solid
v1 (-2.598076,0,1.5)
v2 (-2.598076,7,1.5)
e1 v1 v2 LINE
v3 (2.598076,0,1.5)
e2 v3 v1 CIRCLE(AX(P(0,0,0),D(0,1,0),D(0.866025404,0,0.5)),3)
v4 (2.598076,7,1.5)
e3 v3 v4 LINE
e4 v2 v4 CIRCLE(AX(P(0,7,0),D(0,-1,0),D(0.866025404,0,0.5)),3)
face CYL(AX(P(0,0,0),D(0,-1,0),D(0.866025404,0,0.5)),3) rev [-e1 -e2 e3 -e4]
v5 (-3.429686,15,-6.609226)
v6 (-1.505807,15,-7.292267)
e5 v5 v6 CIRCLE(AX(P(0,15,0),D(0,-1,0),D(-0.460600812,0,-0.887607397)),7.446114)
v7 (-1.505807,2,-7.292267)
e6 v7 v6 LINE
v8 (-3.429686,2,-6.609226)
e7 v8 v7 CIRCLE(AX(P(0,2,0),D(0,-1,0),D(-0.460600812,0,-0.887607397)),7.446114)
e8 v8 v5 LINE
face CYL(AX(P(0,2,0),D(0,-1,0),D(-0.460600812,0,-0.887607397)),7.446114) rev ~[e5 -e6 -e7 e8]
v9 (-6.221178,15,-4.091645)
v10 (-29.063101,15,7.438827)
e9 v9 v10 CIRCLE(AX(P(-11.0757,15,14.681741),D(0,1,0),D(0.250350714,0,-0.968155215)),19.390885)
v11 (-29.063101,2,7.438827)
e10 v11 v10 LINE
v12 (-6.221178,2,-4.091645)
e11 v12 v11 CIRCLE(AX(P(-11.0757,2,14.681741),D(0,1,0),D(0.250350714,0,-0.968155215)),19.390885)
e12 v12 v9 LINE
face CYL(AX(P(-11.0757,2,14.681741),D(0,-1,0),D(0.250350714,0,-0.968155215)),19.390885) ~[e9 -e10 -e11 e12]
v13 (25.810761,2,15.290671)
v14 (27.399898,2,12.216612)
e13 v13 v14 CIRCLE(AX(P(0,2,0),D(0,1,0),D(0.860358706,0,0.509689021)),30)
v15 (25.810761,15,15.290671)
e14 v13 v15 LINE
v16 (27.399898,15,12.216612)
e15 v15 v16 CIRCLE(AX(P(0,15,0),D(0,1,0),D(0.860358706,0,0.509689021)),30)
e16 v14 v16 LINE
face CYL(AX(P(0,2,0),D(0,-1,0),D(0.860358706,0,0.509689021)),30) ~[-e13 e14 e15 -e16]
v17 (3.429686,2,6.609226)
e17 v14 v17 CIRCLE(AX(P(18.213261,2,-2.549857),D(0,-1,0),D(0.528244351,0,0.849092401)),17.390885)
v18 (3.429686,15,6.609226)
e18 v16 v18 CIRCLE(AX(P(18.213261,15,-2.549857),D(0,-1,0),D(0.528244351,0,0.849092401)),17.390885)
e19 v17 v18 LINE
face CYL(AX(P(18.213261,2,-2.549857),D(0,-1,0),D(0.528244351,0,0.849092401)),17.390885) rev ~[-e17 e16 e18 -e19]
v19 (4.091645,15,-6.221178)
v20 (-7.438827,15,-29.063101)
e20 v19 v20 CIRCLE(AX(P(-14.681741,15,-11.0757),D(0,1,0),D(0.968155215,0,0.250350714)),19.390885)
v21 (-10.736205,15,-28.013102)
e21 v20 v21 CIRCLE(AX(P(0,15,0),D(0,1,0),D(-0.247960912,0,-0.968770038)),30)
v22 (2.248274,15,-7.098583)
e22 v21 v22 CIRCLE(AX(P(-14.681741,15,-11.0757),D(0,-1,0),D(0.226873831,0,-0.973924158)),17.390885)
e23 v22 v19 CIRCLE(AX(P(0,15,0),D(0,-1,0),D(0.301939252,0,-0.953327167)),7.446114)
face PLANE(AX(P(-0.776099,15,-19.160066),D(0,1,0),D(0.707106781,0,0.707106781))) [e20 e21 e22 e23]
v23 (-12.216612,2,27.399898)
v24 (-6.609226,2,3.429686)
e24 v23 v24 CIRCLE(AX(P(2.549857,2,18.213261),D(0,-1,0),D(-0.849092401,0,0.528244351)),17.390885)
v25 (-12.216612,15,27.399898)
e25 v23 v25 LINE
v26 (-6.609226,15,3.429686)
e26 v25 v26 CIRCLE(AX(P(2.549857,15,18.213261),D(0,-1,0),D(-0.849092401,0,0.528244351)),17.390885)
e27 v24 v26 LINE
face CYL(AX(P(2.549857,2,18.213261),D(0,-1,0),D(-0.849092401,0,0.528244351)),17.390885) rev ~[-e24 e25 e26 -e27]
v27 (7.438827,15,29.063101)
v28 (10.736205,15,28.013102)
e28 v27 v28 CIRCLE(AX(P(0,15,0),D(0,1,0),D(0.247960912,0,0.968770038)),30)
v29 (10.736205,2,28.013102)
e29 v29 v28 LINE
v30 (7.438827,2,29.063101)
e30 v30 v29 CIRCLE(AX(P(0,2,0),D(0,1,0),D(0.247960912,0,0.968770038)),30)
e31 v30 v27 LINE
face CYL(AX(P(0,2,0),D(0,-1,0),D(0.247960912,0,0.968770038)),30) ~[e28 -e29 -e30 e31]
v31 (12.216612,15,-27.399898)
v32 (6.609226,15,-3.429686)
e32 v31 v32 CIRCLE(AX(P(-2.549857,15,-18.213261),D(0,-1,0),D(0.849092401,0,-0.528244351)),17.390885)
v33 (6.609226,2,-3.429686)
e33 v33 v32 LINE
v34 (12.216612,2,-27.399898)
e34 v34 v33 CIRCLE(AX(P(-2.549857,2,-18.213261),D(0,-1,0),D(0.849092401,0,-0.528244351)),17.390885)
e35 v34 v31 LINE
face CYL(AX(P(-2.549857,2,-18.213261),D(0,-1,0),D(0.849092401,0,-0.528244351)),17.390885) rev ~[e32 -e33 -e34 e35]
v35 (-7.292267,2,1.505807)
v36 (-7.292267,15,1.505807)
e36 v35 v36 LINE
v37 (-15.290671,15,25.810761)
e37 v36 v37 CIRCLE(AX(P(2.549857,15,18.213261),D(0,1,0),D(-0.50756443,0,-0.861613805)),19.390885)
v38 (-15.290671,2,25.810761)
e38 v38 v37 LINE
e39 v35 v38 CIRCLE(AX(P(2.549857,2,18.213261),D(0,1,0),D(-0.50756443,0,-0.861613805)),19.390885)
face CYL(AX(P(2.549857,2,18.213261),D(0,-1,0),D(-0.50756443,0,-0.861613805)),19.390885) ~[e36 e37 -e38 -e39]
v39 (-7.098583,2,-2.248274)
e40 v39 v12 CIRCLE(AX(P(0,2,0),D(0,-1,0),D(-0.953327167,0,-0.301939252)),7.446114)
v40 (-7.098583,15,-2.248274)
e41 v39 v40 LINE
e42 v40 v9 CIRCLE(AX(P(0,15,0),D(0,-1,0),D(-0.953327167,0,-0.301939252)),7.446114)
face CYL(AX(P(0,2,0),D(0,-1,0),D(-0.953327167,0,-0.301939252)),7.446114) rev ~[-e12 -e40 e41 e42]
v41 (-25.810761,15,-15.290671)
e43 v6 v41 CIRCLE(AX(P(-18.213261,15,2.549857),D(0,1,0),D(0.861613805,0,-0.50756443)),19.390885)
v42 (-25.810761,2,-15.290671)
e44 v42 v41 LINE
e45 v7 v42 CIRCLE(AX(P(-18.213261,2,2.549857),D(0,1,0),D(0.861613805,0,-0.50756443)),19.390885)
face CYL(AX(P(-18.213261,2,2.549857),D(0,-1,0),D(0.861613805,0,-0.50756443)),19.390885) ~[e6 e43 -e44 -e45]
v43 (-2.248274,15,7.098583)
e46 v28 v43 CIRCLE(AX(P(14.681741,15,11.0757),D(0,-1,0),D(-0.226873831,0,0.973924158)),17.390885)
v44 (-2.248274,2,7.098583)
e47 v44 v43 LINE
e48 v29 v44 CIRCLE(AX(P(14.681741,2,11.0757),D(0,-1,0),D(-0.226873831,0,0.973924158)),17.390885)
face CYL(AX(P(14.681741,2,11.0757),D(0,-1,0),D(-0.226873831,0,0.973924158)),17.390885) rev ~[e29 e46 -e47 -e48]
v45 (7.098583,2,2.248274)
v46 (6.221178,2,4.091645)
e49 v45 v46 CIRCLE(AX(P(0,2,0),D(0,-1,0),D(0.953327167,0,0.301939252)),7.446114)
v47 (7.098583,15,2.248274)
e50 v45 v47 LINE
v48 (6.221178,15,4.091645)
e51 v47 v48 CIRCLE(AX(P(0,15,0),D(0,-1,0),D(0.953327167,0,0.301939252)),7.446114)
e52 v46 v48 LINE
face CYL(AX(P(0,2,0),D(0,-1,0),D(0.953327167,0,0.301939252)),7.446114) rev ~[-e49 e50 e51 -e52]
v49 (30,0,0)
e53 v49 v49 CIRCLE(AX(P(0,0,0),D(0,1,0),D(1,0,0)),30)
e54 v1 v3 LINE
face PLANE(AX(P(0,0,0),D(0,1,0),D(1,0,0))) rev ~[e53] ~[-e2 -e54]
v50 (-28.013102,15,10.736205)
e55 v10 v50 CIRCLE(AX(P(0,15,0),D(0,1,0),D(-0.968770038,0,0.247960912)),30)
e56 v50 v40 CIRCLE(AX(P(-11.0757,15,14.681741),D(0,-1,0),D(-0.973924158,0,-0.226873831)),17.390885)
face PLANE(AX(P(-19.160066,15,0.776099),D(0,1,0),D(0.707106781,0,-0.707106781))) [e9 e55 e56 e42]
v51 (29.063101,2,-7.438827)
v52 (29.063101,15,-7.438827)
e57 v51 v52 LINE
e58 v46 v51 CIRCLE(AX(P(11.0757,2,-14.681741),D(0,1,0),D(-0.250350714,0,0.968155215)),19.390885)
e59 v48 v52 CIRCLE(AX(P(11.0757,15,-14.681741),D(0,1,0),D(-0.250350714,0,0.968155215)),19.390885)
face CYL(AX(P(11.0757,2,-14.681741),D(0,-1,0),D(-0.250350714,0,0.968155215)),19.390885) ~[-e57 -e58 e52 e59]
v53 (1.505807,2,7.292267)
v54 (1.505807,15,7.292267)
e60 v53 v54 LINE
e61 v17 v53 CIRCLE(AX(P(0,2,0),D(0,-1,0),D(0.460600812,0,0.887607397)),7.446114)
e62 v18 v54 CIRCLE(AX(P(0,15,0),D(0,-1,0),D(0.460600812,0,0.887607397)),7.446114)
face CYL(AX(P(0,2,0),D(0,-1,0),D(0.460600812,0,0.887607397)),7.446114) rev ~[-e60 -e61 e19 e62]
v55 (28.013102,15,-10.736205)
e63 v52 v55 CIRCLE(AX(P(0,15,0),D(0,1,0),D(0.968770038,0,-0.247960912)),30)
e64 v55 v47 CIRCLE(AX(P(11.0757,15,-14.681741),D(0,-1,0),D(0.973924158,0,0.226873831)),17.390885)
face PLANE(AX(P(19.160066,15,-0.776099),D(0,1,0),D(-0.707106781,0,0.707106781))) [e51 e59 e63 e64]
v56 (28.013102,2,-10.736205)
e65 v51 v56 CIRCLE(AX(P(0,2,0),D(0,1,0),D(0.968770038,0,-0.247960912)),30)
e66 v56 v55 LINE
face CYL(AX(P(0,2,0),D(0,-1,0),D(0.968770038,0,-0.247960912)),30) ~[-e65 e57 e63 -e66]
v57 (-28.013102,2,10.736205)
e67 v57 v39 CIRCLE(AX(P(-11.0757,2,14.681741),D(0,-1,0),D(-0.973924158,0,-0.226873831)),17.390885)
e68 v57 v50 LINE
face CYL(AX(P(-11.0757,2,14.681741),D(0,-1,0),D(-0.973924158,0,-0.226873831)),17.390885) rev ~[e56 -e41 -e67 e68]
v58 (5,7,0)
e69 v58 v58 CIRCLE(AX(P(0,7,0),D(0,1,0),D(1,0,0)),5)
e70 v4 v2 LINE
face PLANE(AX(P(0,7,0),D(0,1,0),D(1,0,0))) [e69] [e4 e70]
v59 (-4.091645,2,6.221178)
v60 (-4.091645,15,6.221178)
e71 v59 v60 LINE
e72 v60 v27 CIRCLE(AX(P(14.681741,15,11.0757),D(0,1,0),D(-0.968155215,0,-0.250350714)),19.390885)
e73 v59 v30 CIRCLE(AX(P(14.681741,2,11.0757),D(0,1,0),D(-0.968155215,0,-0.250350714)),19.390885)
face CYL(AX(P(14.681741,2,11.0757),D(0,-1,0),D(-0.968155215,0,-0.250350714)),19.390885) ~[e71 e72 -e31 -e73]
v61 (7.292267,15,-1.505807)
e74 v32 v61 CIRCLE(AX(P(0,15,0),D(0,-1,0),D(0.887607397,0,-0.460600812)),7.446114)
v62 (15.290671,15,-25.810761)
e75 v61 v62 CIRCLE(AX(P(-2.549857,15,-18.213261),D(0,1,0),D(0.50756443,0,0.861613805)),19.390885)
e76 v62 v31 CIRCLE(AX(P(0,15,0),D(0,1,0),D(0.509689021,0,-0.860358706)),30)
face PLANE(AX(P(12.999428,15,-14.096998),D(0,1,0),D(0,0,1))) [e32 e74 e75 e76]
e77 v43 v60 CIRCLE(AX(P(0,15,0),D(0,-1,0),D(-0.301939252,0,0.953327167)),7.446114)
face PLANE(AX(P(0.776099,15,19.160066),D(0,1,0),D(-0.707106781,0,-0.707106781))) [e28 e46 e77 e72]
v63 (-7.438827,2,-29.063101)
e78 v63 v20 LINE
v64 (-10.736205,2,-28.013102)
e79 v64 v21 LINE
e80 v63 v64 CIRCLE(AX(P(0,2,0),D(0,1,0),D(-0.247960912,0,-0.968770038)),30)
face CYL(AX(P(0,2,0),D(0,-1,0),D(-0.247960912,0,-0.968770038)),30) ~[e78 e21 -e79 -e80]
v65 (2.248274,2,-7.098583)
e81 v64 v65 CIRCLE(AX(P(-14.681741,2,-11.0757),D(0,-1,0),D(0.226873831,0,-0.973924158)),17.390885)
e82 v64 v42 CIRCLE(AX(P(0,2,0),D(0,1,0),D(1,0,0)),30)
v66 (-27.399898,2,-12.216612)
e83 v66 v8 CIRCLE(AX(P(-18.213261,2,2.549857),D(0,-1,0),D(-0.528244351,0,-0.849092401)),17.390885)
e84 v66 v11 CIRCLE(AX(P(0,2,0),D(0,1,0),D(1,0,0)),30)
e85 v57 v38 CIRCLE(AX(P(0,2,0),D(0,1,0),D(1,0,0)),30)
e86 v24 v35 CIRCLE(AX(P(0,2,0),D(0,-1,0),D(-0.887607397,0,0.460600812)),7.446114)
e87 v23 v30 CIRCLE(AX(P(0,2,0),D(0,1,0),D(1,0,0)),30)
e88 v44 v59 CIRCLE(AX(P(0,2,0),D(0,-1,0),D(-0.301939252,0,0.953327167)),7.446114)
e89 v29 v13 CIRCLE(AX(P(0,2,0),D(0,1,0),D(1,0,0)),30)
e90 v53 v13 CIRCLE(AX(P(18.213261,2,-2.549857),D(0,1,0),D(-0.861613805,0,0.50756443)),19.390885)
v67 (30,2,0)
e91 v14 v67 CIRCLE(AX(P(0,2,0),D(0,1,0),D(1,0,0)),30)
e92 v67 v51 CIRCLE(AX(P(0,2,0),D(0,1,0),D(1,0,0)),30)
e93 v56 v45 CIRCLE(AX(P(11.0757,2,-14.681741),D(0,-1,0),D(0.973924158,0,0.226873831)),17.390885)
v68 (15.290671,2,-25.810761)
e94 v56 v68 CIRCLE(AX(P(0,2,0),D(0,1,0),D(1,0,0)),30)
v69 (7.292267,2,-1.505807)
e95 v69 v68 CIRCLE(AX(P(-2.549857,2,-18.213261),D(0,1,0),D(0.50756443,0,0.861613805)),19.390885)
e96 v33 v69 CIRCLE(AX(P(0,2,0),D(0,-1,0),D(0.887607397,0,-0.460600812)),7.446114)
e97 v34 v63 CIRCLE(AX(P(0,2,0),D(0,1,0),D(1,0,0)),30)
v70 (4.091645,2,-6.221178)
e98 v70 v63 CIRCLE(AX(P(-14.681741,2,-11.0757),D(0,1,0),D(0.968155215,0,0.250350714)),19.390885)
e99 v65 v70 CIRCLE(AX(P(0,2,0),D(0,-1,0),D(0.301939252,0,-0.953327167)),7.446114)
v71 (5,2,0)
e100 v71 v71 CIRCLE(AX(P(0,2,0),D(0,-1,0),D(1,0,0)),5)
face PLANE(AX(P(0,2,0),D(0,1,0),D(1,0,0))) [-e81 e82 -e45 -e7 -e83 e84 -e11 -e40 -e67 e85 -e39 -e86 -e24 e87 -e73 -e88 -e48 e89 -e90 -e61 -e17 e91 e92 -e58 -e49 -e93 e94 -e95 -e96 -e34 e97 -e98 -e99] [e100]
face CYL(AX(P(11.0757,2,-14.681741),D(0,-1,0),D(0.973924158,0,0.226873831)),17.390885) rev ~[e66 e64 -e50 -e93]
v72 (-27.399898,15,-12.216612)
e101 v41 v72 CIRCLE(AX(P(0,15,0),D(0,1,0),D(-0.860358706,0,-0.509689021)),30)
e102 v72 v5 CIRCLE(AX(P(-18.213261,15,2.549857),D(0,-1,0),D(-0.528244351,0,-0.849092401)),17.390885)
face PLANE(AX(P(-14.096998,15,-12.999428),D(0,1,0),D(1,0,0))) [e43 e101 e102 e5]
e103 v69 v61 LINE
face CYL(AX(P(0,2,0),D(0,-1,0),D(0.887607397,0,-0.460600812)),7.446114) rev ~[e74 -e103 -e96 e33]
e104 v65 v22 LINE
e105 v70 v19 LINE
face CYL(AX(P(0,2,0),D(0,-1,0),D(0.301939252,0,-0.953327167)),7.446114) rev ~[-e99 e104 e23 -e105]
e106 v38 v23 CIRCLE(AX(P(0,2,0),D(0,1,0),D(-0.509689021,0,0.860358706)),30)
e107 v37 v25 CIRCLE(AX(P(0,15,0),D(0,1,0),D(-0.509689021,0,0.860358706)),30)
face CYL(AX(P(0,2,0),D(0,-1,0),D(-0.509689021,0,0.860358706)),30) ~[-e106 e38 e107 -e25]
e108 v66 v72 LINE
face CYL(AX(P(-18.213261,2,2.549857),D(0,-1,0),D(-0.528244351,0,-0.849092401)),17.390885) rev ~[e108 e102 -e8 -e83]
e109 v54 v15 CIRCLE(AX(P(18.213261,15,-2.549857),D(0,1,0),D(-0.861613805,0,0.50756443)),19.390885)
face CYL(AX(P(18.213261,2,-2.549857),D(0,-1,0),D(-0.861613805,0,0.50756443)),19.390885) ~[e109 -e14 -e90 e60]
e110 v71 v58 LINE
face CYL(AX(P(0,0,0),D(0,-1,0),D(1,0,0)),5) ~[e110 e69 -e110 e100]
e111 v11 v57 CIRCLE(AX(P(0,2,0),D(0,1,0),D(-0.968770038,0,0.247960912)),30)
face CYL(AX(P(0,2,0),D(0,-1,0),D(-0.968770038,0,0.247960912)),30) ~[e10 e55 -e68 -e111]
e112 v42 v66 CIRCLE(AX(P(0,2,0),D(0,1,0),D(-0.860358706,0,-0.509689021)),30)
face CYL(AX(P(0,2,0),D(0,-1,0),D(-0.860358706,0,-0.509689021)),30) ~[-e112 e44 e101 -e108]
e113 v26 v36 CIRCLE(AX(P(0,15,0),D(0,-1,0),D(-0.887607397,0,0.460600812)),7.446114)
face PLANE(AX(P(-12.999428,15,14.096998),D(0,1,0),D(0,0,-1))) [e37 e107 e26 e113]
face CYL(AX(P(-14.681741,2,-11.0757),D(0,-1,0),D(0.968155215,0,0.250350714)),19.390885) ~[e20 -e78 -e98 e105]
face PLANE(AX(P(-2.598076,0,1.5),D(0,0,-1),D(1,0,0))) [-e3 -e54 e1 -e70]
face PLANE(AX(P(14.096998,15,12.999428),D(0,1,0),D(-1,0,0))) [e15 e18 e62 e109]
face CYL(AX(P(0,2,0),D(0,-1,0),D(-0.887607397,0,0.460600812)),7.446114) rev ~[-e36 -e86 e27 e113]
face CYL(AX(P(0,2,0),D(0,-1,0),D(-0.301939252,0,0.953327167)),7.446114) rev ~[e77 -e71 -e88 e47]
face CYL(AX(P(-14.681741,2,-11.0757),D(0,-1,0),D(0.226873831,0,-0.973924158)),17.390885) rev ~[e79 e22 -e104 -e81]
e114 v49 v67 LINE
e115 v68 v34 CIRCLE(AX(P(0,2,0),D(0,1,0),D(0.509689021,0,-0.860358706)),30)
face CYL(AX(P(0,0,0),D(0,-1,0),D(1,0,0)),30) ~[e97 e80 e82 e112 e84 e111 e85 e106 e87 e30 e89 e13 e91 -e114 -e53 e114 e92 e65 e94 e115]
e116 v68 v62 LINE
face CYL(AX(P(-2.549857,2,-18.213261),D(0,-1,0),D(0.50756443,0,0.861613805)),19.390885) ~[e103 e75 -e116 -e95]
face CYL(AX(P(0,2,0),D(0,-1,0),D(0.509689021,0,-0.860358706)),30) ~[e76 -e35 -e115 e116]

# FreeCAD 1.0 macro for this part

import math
import FreeCAD as App
import Part
import Sketcher
from FreeCAD import Vector

doc = App.newDocument("Part")
body = doc.addObject("PartDesign::Body", "Body")

# Sketch on XZ plane
sketch1 = body.newObject("Sketcher::SketchObject", "Sketch")
sketch1.AttachmentSupport = (doc.getObject("XZ_Plane"), [""])
sketch1.MapMode = "FlatFace"
sketch1.addGeometry(Part.Circle(Vector(0, 0, 0), Vector(0, 0, 1), 30), False)
sketch1.addConstraint([
    Sketcher.Constraint("Coincident", 0, 3, -1, 1),
    Sketcher.Constraint("Diameter", 0, 60.0),
])
pad1 = body.newObject("PartDesign::Pad", "Pad")
pad1.Profile = sketch1
pad1.Length = 2
pad1.Reversed = True

# Sketch on XZ plane
sketch2 = body.newObject("Sketcher::SketchObject", "Sketch001")
sketch2.AttachmentSupport = (doc.getObject("XZ_Plane"), [""])
sketch2.MapMode = "FlatFace"
sketch2.addGeometry(Part.Circle(Vector(0, 0, 0), Vector(0, 0, 1), 5), False)
sketch2.addConstraint([
    Sketcher.Constraint("Coincident", 0, 3, -1, 1),
    Sketcher.Constraint("Diameter", 0, 10.0),
])
pad2 = body.newObject("PartDesign::Pad", "Pad001")
pad2.Profile = sketch2
pad2.Length = 7
pad2.Reversed = True

# Sketch on XZ plane
sketch3 = body.newObject("Sketcher::SketchObject", "Sketch002")
sketch3.AttachmentSupport = (doc.getObject("XZ_Plane"), [""])
sketch3.MapMode = "FlatFace"
sketch3.AttachmentOffset = App.Placement(Vector(0, 0, -2), App.Rotation())
sketch3.addGeometry([
    Part.ArcOfCircle(Part.Circle(Vector(-18.2, 2.5, 0), Vector(0, 0, 1), 19.4), math.radians(-113), math.radians(-31)),
    Part.ArcOfCircle(Part.Circle(Vector(0, 0, 0), Vector(0, 0, 1), 30), math.radians(-155.97), math.radians(-149.36)),
    Part.ArcOfCircle(Part.Circle(Vector(-18.2, 2.5, 0), Vector(0, 0, 1), 17.4), math.radians(-122), math.radians(-32)),
    Part.ArcOfCircle(Part.Circle(Vector(0, 0, 0), Vector(0, 0, 1), 7.4), math.radians(-117.43), math.radians(-101.67)),
], False)
sketch3.addConstraint([
    Sketcher.Constraint("Coincident", 0, 1, 1, 2),
    Sketcher.Constraint("Coincident", 1, 1, 2, 1),
    Sketcher.Constraint("Coincident", 2, 2, 3, 1),
    Sketcher.Constraint("Coincident", 3, 2, 0, 2),
    Sketcher.Constraint("Coincident", 1, 3, -1, 1),
    Sketcher.Constraint("Coincident", 3, 3, -1, 1),
    Sketcher.Constraint("Coincident", 2, 3, 0, 3),
    Sketcher.Constraint("Radius", 1, 30.0),
    Sketcher.Constraint("Radius", 0, 19.390885),
    Sketcher.Constraint("Radius", 2, 17.390885),
    Sketcher.Constraint("Radius", 3, 7.446114),
    Sketcher.Constraint("DistanceX", 0, 1, 0, 3, 7.5975),
    Sketcher.Constraint("DistanceX", 0, 3, -1, 1, 18.213261),
])
pad3 = body.newObject("PartDesign::Pad", "Pad002")
pad3.Profile = sketch3
pad3.Length = 13
pad3.Reversed = True

# Sketch on XZ plane
sketch4 = body.newObject("Sketcher::SketchObject", "Sketch003")
sketch4.AttachmentSupport = (doc.getObject("XZ_Plane"), [""])
sketch4.MapMode = "FlatFace"
sketch4.addGeometry([
    Part.LineSegment(Vector(-2.6, 1.5, 0), Vector(2.6, 1.5, 0)),
    Part.ArcOfCircle(Part.Circle(Vector(0, 0, 0), Vector(0, 0, 1), 3), math.radians(150), math.radians(390)),
], False)
sketch4.addConstraint([
    Sketcher.Constraint("Coincident", 0, 1, 1, 1),
    Sketcher.Constraint("Coincident", 1, 2, 0, 2),
    Sketcher.Constraint("Horizontal", 0),
    Sketcher.Constraint("Coincident", 1, 3, -1, 1),
    Sketcher.Constraint("Radius", 1, 3.0),
    Sketcher.Constraint("DistanceY", -1, 1, 0, 1, 1.5),
])
pocket1 = body.newObject("PartDesign::Pocket", "Pocket")
pocket1.Profile = sketch4
pocket1.Type = "ThroughAll"
doc.recompute()

polarpattern = body.newObject("PartDesign::PolarPattern", "PolarPattern")
polarpattern.Originals = [pad3]
polarpattern.Axis = (doc.getObject("Y_Axis"), [""])
polarpattern.Angle = 360
polarpattern.Occurrences = 8
body.Tip = polarpattern

doc.recompute()
